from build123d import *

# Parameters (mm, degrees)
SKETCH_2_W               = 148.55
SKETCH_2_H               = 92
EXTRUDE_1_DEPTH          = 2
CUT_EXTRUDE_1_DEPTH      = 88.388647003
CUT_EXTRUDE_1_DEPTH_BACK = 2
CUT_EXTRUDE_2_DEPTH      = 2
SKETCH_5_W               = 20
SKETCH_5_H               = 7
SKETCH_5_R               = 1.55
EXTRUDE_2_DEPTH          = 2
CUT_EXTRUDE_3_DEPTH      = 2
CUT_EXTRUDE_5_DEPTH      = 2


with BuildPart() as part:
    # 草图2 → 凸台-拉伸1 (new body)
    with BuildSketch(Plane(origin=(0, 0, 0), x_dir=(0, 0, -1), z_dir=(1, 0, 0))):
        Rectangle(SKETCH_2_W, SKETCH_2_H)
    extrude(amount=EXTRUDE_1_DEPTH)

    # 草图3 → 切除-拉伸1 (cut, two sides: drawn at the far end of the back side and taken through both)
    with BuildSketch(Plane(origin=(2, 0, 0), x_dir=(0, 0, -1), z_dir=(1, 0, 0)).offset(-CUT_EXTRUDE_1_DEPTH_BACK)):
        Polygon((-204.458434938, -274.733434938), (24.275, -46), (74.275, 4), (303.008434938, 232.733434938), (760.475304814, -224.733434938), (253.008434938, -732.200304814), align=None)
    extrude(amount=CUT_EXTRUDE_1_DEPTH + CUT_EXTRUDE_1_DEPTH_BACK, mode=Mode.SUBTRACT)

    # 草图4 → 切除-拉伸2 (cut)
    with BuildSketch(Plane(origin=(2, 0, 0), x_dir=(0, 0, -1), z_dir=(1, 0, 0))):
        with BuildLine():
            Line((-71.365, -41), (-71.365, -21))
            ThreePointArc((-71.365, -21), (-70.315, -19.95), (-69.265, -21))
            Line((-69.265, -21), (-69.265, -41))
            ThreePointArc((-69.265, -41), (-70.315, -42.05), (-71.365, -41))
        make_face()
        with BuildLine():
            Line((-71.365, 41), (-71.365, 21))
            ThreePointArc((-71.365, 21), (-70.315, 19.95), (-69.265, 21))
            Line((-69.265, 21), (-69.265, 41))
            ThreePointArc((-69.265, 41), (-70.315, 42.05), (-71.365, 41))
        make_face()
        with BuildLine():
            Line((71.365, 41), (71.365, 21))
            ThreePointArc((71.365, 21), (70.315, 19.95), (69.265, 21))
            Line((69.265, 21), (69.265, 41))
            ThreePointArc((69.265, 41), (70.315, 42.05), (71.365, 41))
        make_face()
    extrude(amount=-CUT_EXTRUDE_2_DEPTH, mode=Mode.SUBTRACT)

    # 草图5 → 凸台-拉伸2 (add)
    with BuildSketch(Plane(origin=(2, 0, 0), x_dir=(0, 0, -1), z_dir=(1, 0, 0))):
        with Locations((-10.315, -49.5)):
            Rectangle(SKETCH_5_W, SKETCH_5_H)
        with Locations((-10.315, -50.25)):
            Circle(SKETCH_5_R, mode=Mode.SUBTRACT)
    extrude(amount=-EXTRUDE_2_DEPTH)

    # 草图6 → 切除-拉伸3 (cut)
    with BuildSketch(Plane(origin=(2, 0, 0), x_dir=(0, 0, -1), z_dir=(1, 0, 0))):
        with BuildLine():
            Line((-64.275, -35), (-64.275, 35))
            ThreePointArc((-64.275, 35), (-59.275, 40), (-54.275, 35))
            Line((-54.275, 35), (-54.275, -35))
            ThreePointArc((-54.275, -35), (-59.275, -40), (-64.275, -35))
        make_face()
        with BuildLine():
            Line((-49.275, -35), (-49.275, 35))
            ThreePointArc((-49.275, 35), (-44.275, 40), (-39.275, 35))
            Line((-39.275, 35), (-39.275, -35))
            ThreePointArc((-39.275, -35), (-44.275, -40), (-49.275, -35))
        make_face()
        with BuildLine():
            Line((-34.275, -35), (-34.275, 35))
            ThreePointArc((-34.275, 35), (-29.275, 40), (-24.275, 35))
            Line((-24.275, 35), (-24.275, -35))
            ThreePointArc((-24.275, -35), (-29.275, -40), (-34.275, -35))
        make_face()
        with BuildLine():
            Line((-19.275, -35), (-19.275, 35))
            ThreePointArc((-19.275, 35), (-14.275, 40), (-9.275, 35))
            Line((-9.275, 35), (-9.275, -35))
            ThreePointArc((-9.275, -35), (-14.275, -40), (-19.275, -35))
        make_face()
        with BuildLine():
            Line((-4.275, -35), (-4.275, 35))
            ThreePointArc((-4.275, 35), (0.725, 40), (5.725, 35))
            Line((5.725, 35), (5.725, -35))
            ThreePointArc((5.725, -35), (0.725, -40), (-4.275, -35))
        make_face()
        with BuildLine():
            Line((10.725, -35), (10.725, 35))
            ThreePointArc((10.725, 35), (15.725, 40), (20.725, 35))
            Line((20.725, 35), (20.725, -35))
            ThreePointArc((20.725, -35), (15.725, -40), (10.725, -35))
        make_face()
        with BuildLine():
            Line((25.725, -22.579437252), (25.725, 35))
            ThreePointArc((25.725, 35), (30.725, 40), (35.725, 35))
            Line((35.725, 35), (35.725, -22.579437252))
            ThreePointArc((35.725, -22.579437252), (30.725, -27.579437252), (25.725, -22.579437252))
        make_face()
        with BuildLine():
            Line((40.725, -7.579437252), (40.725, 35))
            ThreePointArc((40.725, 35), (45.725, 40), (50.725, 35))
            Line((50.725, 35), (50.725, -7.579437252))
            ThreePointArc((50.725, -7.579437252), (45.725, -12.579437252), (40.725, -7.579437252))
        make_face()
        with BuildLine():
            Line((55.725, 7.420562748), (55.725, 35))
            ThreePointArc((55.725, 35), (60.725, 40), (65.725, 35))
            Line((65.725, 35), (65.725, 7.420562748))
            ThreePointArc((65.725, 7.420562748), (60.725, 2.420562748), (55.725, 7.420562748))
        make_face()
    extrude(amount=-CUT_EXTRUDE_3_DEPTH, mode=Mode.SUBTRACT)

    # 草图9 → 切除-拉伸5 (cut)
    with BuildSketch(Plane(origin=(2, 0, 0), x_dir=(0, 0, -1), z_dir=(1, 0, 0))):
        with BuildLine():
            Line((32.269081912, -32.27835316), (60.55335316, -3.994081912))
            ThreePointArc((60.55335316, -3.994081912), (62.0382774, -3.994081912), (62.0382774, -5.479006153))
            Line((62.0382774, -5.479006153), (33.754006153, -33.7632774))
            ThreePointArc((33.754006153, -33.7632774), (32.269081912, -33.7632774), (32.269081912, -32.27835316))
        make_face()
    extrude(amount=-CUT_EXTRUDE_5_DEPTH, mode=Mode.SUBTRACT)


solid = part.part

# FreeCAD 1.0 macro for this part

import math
import FreeCAD as App
import Part
import Sketcher

V = App.Vector
Q = App.Units.Quantity

doc = App.newDocument("Part")
body = doc.addObject("PartDesign::Body", "Body")

# Sketch on YZ plane
sketch1 = doc.addObject("Sketcher::SketchObject", "Sketch")
body.addObject(sketch1)
sketch1.AttachmentSupport = (doc.YZ_Plane, [""])
sketch1.MapMode = "FlatFace"
sketch1.addGeometry([
    Part.LineSegment(V(46, 74.275, 0), V(-46, 74.275, 0)),
    Part.LineSegment(V(-46, 74.275, 0), V(-46, -74.275, 0)),
    Part.LineSegment(V(-46, -74.275, 0), V(46, -74.275, 0)),
    Part.LineSegment(V(46, -74.275, 0), V(46, 74.275, 0)),
], False)
sketch1.addConstraint([
    Sketcher.Constraint("Coincident", 0, 2, 1, 1),
    Sketcher.Constraint("Coincident", 1, 2, 2, 1),
    Sketcher.Constraint("Coincident", 2, 2, 3, 1),
    Sketcher.Constraint("Coincident", 3, 2, 0, 1),
    Sketcher.Constraint("Horizontal", 0),
    Sketcher.Constraint("Vertical", 1),
    Sketcher.Constraint("Horizontal", 2),
    Sketcher.Constraint("Vertical", 3),
    Sketcher.Constraint("Symmetric", 0, 2, 2, 2, -1, 1),
    Sketcher.Constraint("DistanceX", 0, 2, 0, 1, Q("92 mm")),
    Sketcher.Constraint("DistanceY", 1, 2, 1, 1, Q("148.55 mm")),
])
pad1 = doc.addObject("PartDesign::Pad", "Pad")
body.addObject(pad1)
pad1.Profile = sketch1
pad1.Length = 2

# Sketch on YZ plane
sketch2 = doc.addObject("Sketcher::SketchObject", "Sketch001")
body.addObject(sketch2)
sketch2.AttachmentSupport = (doc.YZ_Plane, [""])
sketch2.MapMode = "FlatFace"
sketch2.AttachmentOffset = App.Placement(V(0, 0, 2), App.Rotation())
sketch2.addGeometry([
    Part.LineSegment(V(232.733435, -303.008435, 0), V(-274.733435, 204.458435, 0)),
    Part.LineSegment(V(-274.733435, 204.458435, 0), V(-732.200305, -253.008435, 0)),
    Part.LineSegment(V(-732.200305, -253.008435, 0), V(-224.733435, -760.475305, 0)),
    Part.LineSegment(V(-224.733435, -760.475305, 0), V(232.733435, -303.008435, 0)),
], False)
sketch2.addConstraint([
    Sketcher.Constraint("Coincident", 0, 2, 1, 1),
    Sketcher.Constraint("Coincident", 1, 2, 2, 1),
    Sketcher.Constraint("Coincident", 2, 2, 3, 1),
    Sketcher.Constraint("Coincident", 3, 2, 0, 1),
    Sketcher.Constraint("Perpendicular", 0, 1),
    Sketcher.Constraint("Perpendicular", 1, 2),
    Sketcher.Constraint("Perpendicular", 2, 3),
    Sketcher.Constraint("Angle", 0, Q("135 deg")),
    Sketcher.Constraint("DistanceX", 0, 2, 2, 2, Q("50 mm")),
    Sketcher.Constraint("Distance", 0, Q("717.66653 mm")),
    Sketcher.Constraint("DistanceX", 0, 2, -1, 1, Q("274.733435 mm")),
    Sketcher.Constraint("DistanceY", -1, 1, 0, 2, Q("204.458435 mm")),
])
pocket1 = doc.addObject("PartDesign::Pocket", "Pocket")
body.addObject(pocket1)
pocket1.Profile = sketch2
pocket1.Type = "ThroughAll"
pocket1.Midplane = True

# Sketch on YZ plane
sketch3 = doc.addObject("Sketcher::SketchObject", "Sketch002")
body.addObject(sketch3)
sketch3.AttachmentSupport = (doc.YZ_Plane, [""])
sketch3.MapMode = "FlatFace"
sketch3.AttachmentOffset = App.Placement(V(0, 0, 2), App.Rotation())
sketch3.addGeometry([
    Part.LineSegment(V(-21, 71.365, 0), V(-41, 71.365, 0)),  # 0
    Part.ArcOfCircle(Part.Circle(V(-41, 70.315, 0), V(0, 0, 1), 1.05), math.radians(90), math.radians(270)),  # 1
    Part.LineSegment(V(-41, 69.265, 0), V(-21, 69.265, 0)),  # 2
    Part.ArcOfCircle(Part.Circle(V(-21, 70.315, 0), V(0, 0, 1), 1.05), math.radians(-90), math.radians(90)),  # 3
    Part.LineSegment(V(41, 71.365, 0), V(21, 71.365, 0)),  # 4
    Part.ArcOfCircle(Part.Circle(V(21, 70.315, 0), V(0, 0, 1), 1.05), math.radians(90), math.radians(270)),  # 5
    Part.LineSegment(V(21, 69.265, 0), V(41, 69.265, 0)),  # 6
    Part.ArcOfCircle(Part.Circle(V(41, 70.315, 0), V(0, 0, 1), 1.05), math.radians(-90), math.radians(90)),  # 7
    Part.LineSegment(V(21, -71.365, 0), V(41, -71.365, 0)),  # 8
    Part.ArcOfCircle(Part.Circle(V(41, -70.315, 0), V(0, 0, 1), 1.05), math.radians(-90), math.radians(90)),  # 9
    Part.LineSegment(V(41, -69.265, 0), V(21, -69.265, 0)),  # 10
    Part.ArcOfCircle(Part.Circle(V(21, -70.315, 0), V(0, 0, 1), 1.05), math.radians(90), math.radians(270)),  # 11
], False)
sketch3.addConstraint([
    Sketcher.Constraint("Tangent", 0, 2, 1, 1),
    Sketcher.Constraint("Tangent", 1, 2, 2, 1),
    Sketcher.Constraint("Tangent", 2, 2, 3, 1),
    Sketcher.Constraint("Tangent", 3, 2, 0, 1),
    Sketcher.Constraint("Tangent", 4, 2, 5, 1),
    Sketcher.Constraint("Tangent", 5, 2, 6, 1),
    Sketcher.Constraint("Tangent", 6, 2, 7, 1),
    Sketcher.Constraint("Tangent", 7, 2, 4, 1),
    Sketcher.Constraint("Tangent", 8, 2, 9, 1),
    Sketcher.Constraint("Tangent", 9, 2, 10, 1),
    Sketcher.Constraint("Tangent", 10, 2, 11, 1),
    Sketcher.Constraint("Tangent", 11, 2, 8, 1),
    Sketcher.Constraint("Horizontal", 0),
    Sketcher.Constraint("Horizontal", 2),
    Sketcher.Constraint("Horizontal", 4),
    Sketcher.Constraint("Horizontal", 6),
    Sketcher.Constraint("Horizontal", 8),
    Sketcher.Constraint("Horizontal", 10),
    Sketcher.Constraint("Equal", 3, 5),
    Sketcher.Constraint("Equal", 7, 9),
    Sketcher.Constraint("Symmetric", 1, 3, 9, 3, -1, 1),
    Sketcher.Constraint("Symmetric", 3, 3, 5, 3, -2),
    Sketcher.Constraint("Vertical", 7, 3, 9, 3),
    Sketcher.Constraint("Vertical", 5, 3, 11, 3),
    Sketcher.Constraint("DistanceX", 0, 2, 0, 1, Q("20 mm")),
    Sketcher.Constraint("Radius", 1, Q("1.05 mm")),
    Sketcher.Constraint("DistanceX", 1, 3, -1, 1, Q("41 mm")),
    Sketcher.Constraint("DistanceY", 9, 3, 7, 3, Q("140.63 mm")),
])
pocket2 = doc.addObject("PartDesign::Pocket", "Pocket001")
body.addObject(pocket2)
pocket2.Profile = sketch3
pocket2.Length = 2

# Sketch on YZ plane
sketch4 = doc.addObject("Sketcher::SketchObject", "Sketch003")
body.addObject(sketch4)
sketch4.AttachmentSupport = (doc.YZ_Plane, [""])
sketch4.MapMode = "FlatFace"
sketch4.AttachmentOffset = App.Placement(V(0, 0, 2), App.Rotation())
sketch4.addGeometry([
    Part.LineSegment(V(-46, 20.315, 0), V(-53, 20.315, 0)),  # 0
    Part.LineSegment(V(-53, 20.315, 0), V(-53, 0.315, 0)),  # 1
    Part.LineSegment(V(-53, 0.315, 0), V(-46, 0.315, 0)),  # 2
    Part.LineSegment(V(-46, 0.315, 0), V(-46, 20.315, 0)),  # 3
    Part.Circle(V(-50.25, 10.315, 0), V(0, 0, 1), 1.55),  # 4
], False)
sketch4.addConstraint([
    Sketcher.Constraint("Coincident", 0, 2, 1, 1),
    Sketcher.Constraint("Coincident", 1, 2, 2, 1),
    Sketcher.Constraint("Coincident", 2, 2, 3, 1),
    Sketcher.Constraint("Coincident", 3, 2, 0, 1),
    Sketcher.Constraint("Horizontal", 0),
    Sketcher.Constraint("Vertical", 1),
    Sketcher.Constraint("Horizontal", 2),
    Sketcher.Constraint("Vertical", 3),
    Sketcher.Constraint("Diameter", 4, Q("3.1 mm")),
    Sketcher.Constraint("DistanceX", 0, 2, 0, 1, Q("7 mm")),
    Sketcher.Constraint("DistanceY", 1, 2, 1, 1, Q("20 mm")),
    Sketcher.Constraint("DistanceX", 0, 2, -1, 1, Q("53 mm")),
    Sketcher.Constraint("DistanceY", 4, 3, 0, 2, Q("10 mm")),
    Sketcher.Constraint("DistanceX", 4, 3, -1, 1, Q("50.25 mm")),
    Sketcher.Constraint("DistanceY", -1, 1, 4, 3, Q("10.315 mm")),
])
pad2 = doc.addObject("PartDesign::Pad", "Pad001")
body.addObject(pad2)
pad2.Profile = sketch4
pad2.Length = 2
pad2.Reversed = True

# Sketch on YZ plane
sketch5 = doc.addObject("Sketcher::SketchObject", "Sketch004")
body.addObject(sketch5)
sketch5.AttachmentSupport = (doc.YZ_Plane, [""])
sketch5.MapMode = "FlatFace"
sketch5.AttachmentOffset = App.Placement(V(0, 0, 2), App.Rotation())
sketch5.addGeometry([
    Part.LineSegment(V(35, 64.275, 0), V(-35, 64.275, 0)),  # 0
    Part.ArcOfCircle(Part.Circle(V(-35, 59.275, 0), V(0, 0, 1), 5), math.radians(90), math.radians(270)),  # 1
    Part.LineSegment(V(-35, 54.275, 0), V(35, 54.275, 0)),  # 2
    Part.ArcOfCircle(Part.Circle(V(35, 59.275, 0), V(0, 0, 1), 5), math.radians(-90), math.radians(90)),  # 3
    Part.LineSegment(V(35, 49.275, 0), V(-35, 49.275, 0)),  # 4
    Part.ArcOfCircle(Part.Circle(V(-35, 44.275, 0), V(0, 0, 1), 5), math.radians(90), math.radians(270)),  # 5
    Part.LineSegment(V(-35, 39.275, 0), V(35, 39.275, 0)),  # 6
    Part.ArcOfCircle(Part.Circle(V(35, 44.275, 0), V(0, 0, 1), 5), math.radians(-90), math.radians(90)),  # 7
    Part.LineSegment(V(35, 34.275, 0), V(-35, 34.275, 0)),  # 8
    Part.ArcOfCircle(Part.Circle(V(-35, 29.275, 0), V(0, 0, 1), 5), math.radians(90), math.radians(270)),  # 9
    Part.LineSegment(V(-35, 24.275, 0), V(35, 24.275, 0)),  # 10
    Part.ArcOfCircle(Part.Circle(V(35, 29.275, 0), V(0, 0, 1), 5), math.radians(-90), math.radians(90)),  # 11
    Part.LineSegment(V(35, 19.275, 0), V(-35, 19.275, 0)),  # 12
    Part.ArcOfCircle(Part.Circle(V(-35, 14.275, 0), V(0, 0, 1), 5), math.radians(90), math.radians(270)),  # 13
    Part.LineSegment(V(-35, 9.275, 0), V(35, 9.275, 0)),  # 14
    Part.ArcOfCircle(Part.Circle(V(35, 14.275, 0), V(0, 0, 1), 5), math.radians(-90), math.radians(90)),  # 15
    Part.LineSegment(V(35, 4.275, 0), V(-35, 4.275, 0)),  # 16
    Part.ArcOfCircle(Part.Circle(V(-35, -0.725, 0), V(0, 0, 1), 5), math.radians(90), math.radians(270)),  # 17
    Part.LineSegment(V(-35, -5.725, 0), V(35, -5.725, 0)),  # 18
    Part.ArcOfCircle(Part.Circle(V(35, -0.725, 0), V(0, 0, 1), 5), math.radians(-90), math.radians(90)),  # 19
    Part.LineSegment(V(35, -10.725, 0), V(-35, -10.725, 0)),  # 20
    Part.ArcOfCircle(Part.Circle(V(-35, -15.725, 0), V(0, 0, 1), 5), math.radians(90), math.radians(270)),  # 21
    Part.LineSegment(V(-35, -20.725, 0), V(35, -20.725, 0)),  # 22
    Part.ArcOfCircle(Part.Circle(V(35, -15.725, 0), V(0, 0, 1), 5), math.radians(-90), math.radians(90)),  # 23
    Part.LineSegment(V(35, -25.725, 0), V(-22.579437, -25.725, 0)),  # 24
    Part.ArcOfCircle(Part.Circle(V(-22.579437, -30.725, 0), V(0, 0, 1), 5), math.radians(90), math.radians(270)),  # 25
    Part.LineSegment(V(-22.579437, -35.725, 0), V(35, -35.725, 0)),  # 26
    Part.ArcOfCircle(Part.Circle(V(35, -30.725, 0), V(0, 0, 1), 5), math.radians(-90), math.radians(90)),  # 27
    Part.LineSegment(V(35, -40.725, 0), V(-7.579437, -40.725, 0)),  # 28
    Part.ArcOfCircle(Part.Circle(V(-7.579437, -45.725, 0), V(0, 0, 1), 5), math.radians(90), math.radians(270)),  # 29
    Part.LineSegment(V(-7.579437, -50.725, 0), V(35, -50.725, 0)),  # 30
    Part.ArcOfCircle(Part.Circle(V(35, -45.725, 0), V(0, 0, 1), 5), math.radians(-90), math.radians(90)),  # 31
    Part.LineSegment(V(35, -55.725, 0), V(7.420563, -55.725, 0)),  # 32
    Part.ArcOfCircle(Part.Circle(V(7.420563, -60.725, 0), V(0, 0, 1), 5), math.radians(90), math.radians(270)),  # 33
    Part.LineSegment(V(7.420563, -65.725, 0), V(35, -65.725, 0)),  # 34
    Part.ArcOfCircle(Part.Circle(V(35, -60.725, 0), V(0, 0, 1), 5), math.radians(-90), math.radians(90)),  # 35
], False)
sketch5.addConstraint([
    Sketcher.Constraint("Tangent", 0, 2, 1, 1),
    Sketcher.Constraint("Tangent", 1, 2, 2, 1),
    Sketcher.Constraint("Tangent", 2, 2, 3, 1),
    Sketcher.Constraint("Tangent", 3, 2, 0, 1),
    Sketcher.Constraint("Tangent", 4, 2, 5, 1),
    Sketcher.Constraint("Tangent", 5, 2, 6, 1),
    Sketcher.Constraint("Tangent", 6, 2, 7, 1),
    Sketcher.Constraint("Tangent", 7, 2, 4, 1),
    Sketcher.Constraint("Tangent", 8, 2, 9, 1),
    Sketcher.Constraint("Tangent", 9, 2, 10, 1),
    Sketcher.Constraint("Tangent", 10, 2, 11, 1),
    Sketcher.Constraint("Tangent", 11, 2, 8, 1),
    Sketcher.Constraint("Tangent", 12, 2, 13, 1),
    Sketcher.Constraint("Tangent", 13, 2, 14, 1),
    Sketcher.Constraint("Tangent", 14, 2, 15, 1),
    Sketcher.Constraint("Tangent", 15, 2, 12, 1),
    Sketcher.Constraint("Tangent", 16, 2, 17, 1),
    Sketcher.Constraint("Tangent", 17, 2, 18, 1),
    Sketcher.Constraint("Tangent", 18, 2, 19, 1),
    Sketcher.Constraint("Tangent", 19, 2, 16, 1),
    Sketcher.Constraint("Tangent", 20, 2, 21, 1),
    Sketcher.Constraint("Tangent", 21, 2, 22, 1),
    Sketcher.Constraint("Tangent", 22, 2, 23, 1),
    Sketcher.Constraint("Tangent", 23, 2, 20, 1),
    Sketcher.Constraint("Tangent", 24, 2, 25, 1),
    Sketcher.Constraint("Tangent", 25, 2, 26, 1),
    Sketcher.Constraint("Tangent", 26, 2, 27, 1),
    Sketcher.Constraint("Tangent", 27, 2, 24, 1),
    Sketcher.Constraint("Tangent", 28, 2, 29, 1),
    Sketcher.Constraint("Tangent", 29, 2, 30, 1),
    Sketcher.Constraint("Tangent", 30, 2, 31, 1),
    Sketcher.Constraint("Tangent", 31, 2, 28, 1),
    Sketcher.Constraint("Tangent", 32, 2, 33, 1),
    Sketcher.Constraint("Tangent", 33, 2, 34, 1),
    Sketcher.Constraint("Tangent", 34, 2, 35, 1),
    Sketcher.Constraint("Tangent", 35, 2, 32, 1),
    Sketcher.Constraint("Horizontal", 0),
    Sketcher.Constraint("Horizontal", 2),
    Sketcher.Constraint("Horizontal", 4),
    Sketcher.Constraint("Horizontal", 6),
    Sketcher.Constraint("Horizontal", 8),
    Sketcher.Constraint("Horizontal", 10),
    Sketcher.Constraint("Horizontal", 12),
    Sketcher.Constraint("Horizontal", 14),
    Sketcher.Constraint("Horizontal", 16),
    Sketcher.Constraint("Horizontal", 18),
    Sketcher.Constraint("Horizontal", 20),
    Sketcher.Constraint("Horizontal", 22),
    Sketcher.Constraint("Horizontal", 24),
    Sketcher.Constraint("Horizontal", 26),
    Sketcher.Constraint("Horizontal", 28),
    Sketcher.Constraint("Horizontal", 30),
    Sketcher.Constraint("Horizontal", 32),
    Sketcher.Constraint("Horizontal", 34),
    Sketcher.Constraint("Equal", 3, 5),
    Sketcher.Constraint("Equal", 7, 9),
    Sketcher.Constraint("Equal", 11, 13),
    Sketcher.Constraint("Equal", 15, 17),
    Sketcher.Constraint("Equal", 19, 21),
    Sketcher.Constraint("Equal", 23, 25),
    Sketcher.Constraint("Equal", 27, 29),
    Sketcher.Constraint("Equal", 31, 33),
    Sketcher.Constraint("Vertical", 1, 3, 5, 3),
    Sketcher.Constraint("Vertical", 3, 3, 7, 3),
    Sketcher.Constraint("Vertical", 5, 3, 9, 3),
    Sketcher.Constraint("Vertical", 7, 3, 11, 3),
    Sketcher.Constraint("Vertical", 9, 3, 13, 3),
    Sketcher.Constraint("Vertical", 11, 3, 15, 3),
    Sketcher.Constraint("Vertical", 13, 3, 17, 3),
    Sketcher.Constraint("Vertical", 15, 3, 19, 3),
    Sketcher.Constraint("Vertical", 17, 3, 21, 3),
    Sketcher.Constraint("Vertical", 19, 3, 23, 3),
    Sketcher.Constraint("Vertical", 23, 3, 27, 3),
    Sketcher.Constraint("Vertical", 27, 3, 31, 3),
    Sketcher.Constraint("Vertical", 31, 3, 35, 3),
    Sketcher.Constraint("Radius", 1, Q("5 mm")),
    Sketcher.Constraint("DistanceX", 0, 2, 0, 1, Q("70 mm")),
    Sketcher.Constraint("DistanceX", 1, 3, -1, 1, Q("35 mm")),
    Sketcher.Constraint("DistanceY", 5, 3, 1, 3, Q("15 mm")),
    Sketcher.Constraint("DistanceY", 9, 3, 5, 3, Q("15 mm")),
    Sketcher.Constraint("DistanceY", 13, 3, 9, 3, Q("15 mm")),
    Sketcher.Constraint("DistanceY", 17, 3, 13, 3, Q("15 mm")),
    Sketcher.Constraint("DistanceY", 21, 3, 17, 3, Q("15 mm")),
    Sketcher.Constraint("DistanceY", 25, 3, 21, 3, Q("15 mm")),
    Sketcher.Constraint("DistanceX", 25, 3, 29, 3, Q("15 mm")),
    Sketcher.Constraint("DistanceY", 29, 3, 25, 3, Q("15 mm")),
    Sketcher.Constraint("DistanceX", 29, 3, 33, 3, Q("15 mm")),
    Sketcher.Constraint("DistanceY", 33, 3, 29, 3, Q("15 mm")),
    Sketcher.Constraint("DistanceY", -1, 1, 1, 3, Q("59.275 mm")),
    Sketcher.Constraint("DistanceX", 24, 2, 24, 1, Q("57.579437 mm")),
])
pocket3 = doc.addObject("PartDesign::Pocket", "Pocket002")
body.addObject(pocket3)
pocket3.Profile = sketch5
pocket3.Length = 2

# Sketch on YZ plane
sketch6 = doc.addObject("Sketcher::SketchObject", "Sketch005")
body.addObject(sketch6)
sketch6.AttachmentSupport = (doc.YZ_Plane, [""])
sketch6.MapMode = "FlatFace"
sketch6.AttachmentOffset = App.Placement(V(0, 0, 2), App.Rotation())
sketch6.addGeometry([
    Part.LineSegment(V(-3.994082, -60.553353, 0), V(-32.278353, -32.269082, 0)),
    Part.ArcOfCircle(Part.Circle(V(-33.020815, -33.011544, 0), V(0, 0, 1), 1.05), math.radians(45), math.radians(225)),
    Part.LineSegment(V(-33.763277, -33.754006, 0), V(-5.479006, -62.038277, 0)),
    Part.ArcOfCircle(Part.Circle(V(-4.736544, -61.295815, 0), V(0, 0, 1), 1.05), math.radians(-135), math.radians(45)),
], False)
sketch6.addConstraint([
    Sketcher.Constraint("Tangent", 0, 2, 1, 1),
    Sketcher.Constraint("Tangent", 1, 2, 2, 1),
    Sketcher.Constraint("Tangent", 2, 2, 3, 1),
    Sketcher.Constraint("Tangent", 3, 2, 0, 1),
    Sketcher.Constraint("Equal", 1, 3),
    Sketcher.Constraint("Angle", 0, Q("135 deg")),
    Sketcher.Constraint("Radius", 1, Q("1.05 mm")),
    Sketcher.Constraint("Distance", 0, Q("40 mm")),
    Sketcher.Constraint("DistanceY", 0, 2, -1, 1, Q("32.269082 mm")),
    Sketcher.Constraint("DistanceX", 3, 2, -1, 1, Q("3.994082 mm")),
])
pocket4 = doc.addObject("PartDesign::Pocket", "Pocket003")
body.addObject(pocket4)
pocket4.Profile = sketch6
pocket4.Length = 2

doc.recompute()
